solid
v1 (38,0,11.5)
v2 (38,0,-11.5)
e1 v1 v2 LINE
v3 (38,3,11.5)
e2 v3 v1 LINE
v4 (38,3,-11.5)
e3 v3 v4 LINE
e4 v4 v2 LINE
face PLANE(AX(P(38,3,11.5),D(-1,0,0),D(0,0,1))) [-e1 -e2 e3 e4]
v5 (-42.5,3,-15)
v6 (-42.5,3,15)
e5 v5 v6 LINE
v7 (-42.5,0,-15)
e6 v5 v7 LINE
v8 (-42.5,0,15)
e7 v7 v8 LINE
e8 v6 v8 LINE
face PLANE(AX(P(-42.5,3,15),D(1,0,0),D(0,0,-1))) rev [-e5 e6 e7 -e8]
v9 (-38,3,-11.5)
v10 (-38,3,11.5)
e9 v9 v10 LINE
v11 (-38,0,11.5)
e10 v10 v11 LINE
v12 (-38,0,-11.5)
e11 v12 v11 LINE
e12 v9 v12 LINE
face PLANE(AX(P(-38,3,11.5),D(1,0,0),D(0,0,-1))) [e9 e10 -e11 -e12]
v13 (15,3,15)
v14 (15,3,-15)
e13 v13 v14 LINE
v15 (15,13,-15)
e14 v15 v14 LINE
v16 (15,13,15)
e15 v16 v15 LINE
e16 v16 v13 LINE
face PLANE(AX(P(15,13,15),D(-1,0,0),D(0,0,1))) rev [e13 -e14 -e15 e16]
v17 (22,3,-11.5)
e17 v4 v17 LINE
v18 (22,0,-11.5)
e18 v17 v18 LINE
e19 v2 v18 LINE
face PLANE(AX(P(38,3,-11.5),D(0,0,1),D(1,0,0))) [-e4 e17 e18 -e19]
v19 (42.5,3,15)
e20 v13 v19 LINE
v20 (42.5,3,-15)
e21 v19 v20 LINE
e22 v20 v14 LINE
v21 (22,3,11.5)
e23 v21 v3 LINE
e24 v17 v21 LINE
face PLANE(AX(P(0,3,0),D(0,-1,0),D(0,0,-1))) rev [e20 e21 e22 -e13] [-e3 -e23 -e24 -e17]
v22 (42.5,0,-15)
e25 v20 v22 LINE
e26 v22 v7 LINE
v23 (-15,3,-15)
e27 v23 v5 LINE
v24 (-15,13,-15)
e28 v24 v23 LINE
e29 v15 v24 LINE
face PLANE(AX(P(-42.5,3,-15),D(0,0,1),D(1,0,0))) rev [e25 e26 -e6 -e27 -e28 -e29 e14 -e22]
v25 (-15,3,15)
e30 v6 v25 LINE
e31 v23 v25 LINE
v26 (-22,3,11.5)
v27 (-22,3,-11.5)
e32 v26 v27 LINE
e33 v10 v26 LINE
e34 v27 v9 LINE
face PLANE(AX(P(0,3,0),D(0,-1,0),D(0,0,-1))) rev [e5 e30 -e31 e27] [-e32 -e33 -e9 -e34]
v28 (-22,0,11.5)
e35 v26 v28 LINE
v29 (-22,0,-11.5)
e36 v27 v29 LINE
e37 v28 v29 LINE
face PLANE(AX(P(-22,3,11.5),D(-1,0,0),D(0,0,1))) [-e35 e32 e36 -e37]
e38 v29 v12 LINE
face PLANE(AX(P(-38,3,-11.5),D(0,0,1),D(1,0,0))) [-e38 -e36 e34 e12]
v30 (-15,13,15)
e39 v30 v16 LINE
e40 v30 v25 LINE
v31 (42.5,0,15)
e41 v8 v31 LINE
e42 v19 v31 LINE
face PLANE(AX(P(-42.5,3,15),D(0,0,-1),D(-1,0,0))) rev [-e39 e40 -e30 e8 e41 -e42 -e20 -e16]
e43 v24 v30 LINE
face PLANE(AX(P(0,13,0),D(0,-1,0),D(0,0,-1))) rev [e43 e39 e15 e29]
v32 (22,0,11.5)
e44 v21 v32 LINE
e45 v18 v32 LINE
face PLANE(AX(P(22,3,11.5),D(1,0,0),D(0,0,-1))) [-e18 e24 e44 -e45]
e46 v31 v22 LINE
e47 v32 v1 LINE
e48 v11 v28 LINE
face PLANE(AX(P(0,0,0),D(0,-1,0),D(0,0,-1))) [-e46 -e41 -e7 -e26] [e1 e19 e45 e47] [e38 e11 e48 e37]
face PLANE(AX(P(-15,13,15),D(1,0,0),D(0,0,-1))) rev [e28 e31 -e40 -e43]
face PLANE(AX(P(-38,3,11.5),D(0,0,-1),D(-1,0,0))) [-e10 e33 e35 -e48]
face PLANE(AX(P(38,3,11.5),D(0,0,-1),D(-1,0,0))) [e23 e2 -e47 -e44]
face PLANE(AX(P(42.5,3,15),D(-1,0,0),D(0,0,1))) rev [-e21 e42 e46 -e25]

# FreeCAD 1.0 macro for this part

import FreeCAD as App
import Part
import Sketcher
from FreeCAD import Vector
Q = App.Units.Quantity

doc = App.newDocument("Part")
body = doc.addObject("PartDesign::Body", "Body")

sketch1 = body.newObject("Sketcher::SketchObject", "Sketch")
sketch1.AttachmentSupport = (doc.getObject("XZ_Plane"), [""])
sketch1.MapMode = "FlatFace"
sketch1.addGeometry([
    Part.LineSegment(Vector(-42, -15, 0), Vector(-42, 15, 0)),
    Part.LineSegment(Vector(-42, 15, 0), Vector(42, 15, 0)),
    Part.LineSegment(Vector(42, 15, 0), Vector(42, -15, 0)),
    Part.LineSegment(Vector(42, -15, 0), Vector(-42, -15, 0)),
    Part.LineSegment(Vector(-22, 12, 0), Vector(-38, 12, 0)),
    Part.LineSegment(Vector(-38, 12, 0), Vector(-38, -12, 0)),
    Part.LineSegment(Vector(-38, -12, 0), Vector(-22, -12, 0)),
    Part.LineSegment(Vector(-22, -12, 0), Vector(-22, 12, 0)),
    Part.LineSegment(Vector(38, 12, 0), Vector(22, 12, 0)),
    Part.LineSegment(Vector(22, 12, 0), Vector(22, -12, 0)),
    Part.LineSegment(Vector(22, -12, 0), Vector(38, -12, 0)),
    Part.LineSegment(Vector(38, -12, 0), Vector(38, 12, 0)),
], False)
sketch1.addConstraint([
    Sketcher.Constraint("Coincident", 0, 2, 1, 1),
    Sketcher.Constraint("Coincident", 1, 2, 2, 1),
    Sketcher.Constraint("Coincident", 2, 2, 3, 1),
    Sketcher.Constraint("Coincident", 3, 2, 0, 1),
    Sketcher.Constraint("Coincident", 4, 2, 5, 1),
    Sketcher.Constraint("Coincident", 5, 2, 6, 1),
    Sketcher.Constraint("Coincident", 6, 2, 7, 1),
    Sketcher.Constraint("Coincident", 7, 2, 4, 1),
    Sketcher.Constraint("Coincident", 8, 2, 9, 1),
    Sketcher.Constraint("Coincident", 9, 2, 10, 1),
    Sketcher.Constraint("Coincident", 10, 2, 11, 1),
    Sketcher.Constraint("Coincident", 11, 2, 8, 1),
    Sketcher.Constraint("Vertical", 0),
    Sketcher.Constraint("Horizontal", 1),
    Sketcher.Constraint("Vertical", 2),
    Sketcher.Constraint("Horizontal", 3),
    Sketcher.Constraint("Horizontal", 4),
    Sketcher.Constraint("Vertical", 5),
    Sketcher.Constraint("Horizontal", 6),
    Sketcher.Constraint("Vertical", 7),
    Sketcher.Constraint("Horizontal", 8),
    Sketcher.Constraint("Vertical", 9),
    Sketcher.Constraint("Horizontal", 10),
    Sketcher.Constraint("Vertical", 11),
    Sketcher.Constraint("Symmetric", 0, 2, 2, 2, -1, 1),
    Sketcher.Constraint("Symmetric", 6, 2, 8, 2, -1, 1),
    Sketcher.Constraint("Symmetric", 4, 2, 10, 2, -1, 1),
    Sketcher.Constraint("Horizontal", 7, 2, 8, 2),
    Sketcher.Constraint("DistanceX", 1, 1, 1, 2, Q("85 mm")),
    Sketcher.Constraint("DistanceX", 4, 2, 4, 1, Q("16 mm")),
    Sketcher.Constraint("DistanceY", 0, 1, 0, 2, Q("30 mm")),
    Sketcher.Constraint("DistanceY", 5, 2, 5, 1, Q("23 mm")),
    Sketcher.Constraint("DistanceX", 4, 2, -1, 1, Q("38 mm")),
])
pad1 = body.newObject("PartDesign::Pad", "Pad")
pad1.Profile = sketch1
pad1.Length = 3
pad1.Reversed = True

sketch2 = body.newObject("Sketcher::SketchObject", "Sketch001")
sketch2.AttachmentSupport = (doc.getObject("XZ_Plane"), [""])
sketch2.MapMode = "FlatFace"
sketch2.AttachmentOffset = App.Placement(Vector(0, 0, -3), App.Rotation())
sketch2.addGeometry([
    Part.LineSegment(Vector(-15, -15, 0), Vector(-15, 15, 0)),
    Part.LineSegment(Vector(-15, 15, 0), Vector(15, 15, 0)),
    Part.LineSegment(Vector(15, 15, 0), Vector(15, -15, 0)),
    Part.LineSegment(Vector(15, -15, 0), Vector(-15, -15, 0)),
], False)
sketch2.addConstraint([
    Sketcher.Constraint("Coincident", 0, 2, 1, 1),
    Sketcher.Constraint("Coincident", 1, 2, 2, 1),
    Sketcher.Constraint("Coincident", 2, 2, 3, 1),
    Sketcher.Constraint("Coincident", 3, 2, 0, 1),
    Sketcher.Constraint("Vertical", 0),
    Sketcher.Constraint("Horizontal", 1),
    Sketcher.Constraint("Vertical", 2),
    Sketcher.Constraint("Horizontal", 3),
    Sketcher.Constraint("Symmetric", 0, 2, 2, 2, -1, 1),
    Sketcher.Constraint("Equal", 3, 0),
    Sketcher.Constraint("DistanceX", 1, 1, 1, 2, Q("30 mm")),
])
pad2 = body.newObject("PartDesign::Pad", "Pad001")
pad2.Profile = sketch2
pad2.Length = 10
pad2.Reversed = True

doc.recompute()
